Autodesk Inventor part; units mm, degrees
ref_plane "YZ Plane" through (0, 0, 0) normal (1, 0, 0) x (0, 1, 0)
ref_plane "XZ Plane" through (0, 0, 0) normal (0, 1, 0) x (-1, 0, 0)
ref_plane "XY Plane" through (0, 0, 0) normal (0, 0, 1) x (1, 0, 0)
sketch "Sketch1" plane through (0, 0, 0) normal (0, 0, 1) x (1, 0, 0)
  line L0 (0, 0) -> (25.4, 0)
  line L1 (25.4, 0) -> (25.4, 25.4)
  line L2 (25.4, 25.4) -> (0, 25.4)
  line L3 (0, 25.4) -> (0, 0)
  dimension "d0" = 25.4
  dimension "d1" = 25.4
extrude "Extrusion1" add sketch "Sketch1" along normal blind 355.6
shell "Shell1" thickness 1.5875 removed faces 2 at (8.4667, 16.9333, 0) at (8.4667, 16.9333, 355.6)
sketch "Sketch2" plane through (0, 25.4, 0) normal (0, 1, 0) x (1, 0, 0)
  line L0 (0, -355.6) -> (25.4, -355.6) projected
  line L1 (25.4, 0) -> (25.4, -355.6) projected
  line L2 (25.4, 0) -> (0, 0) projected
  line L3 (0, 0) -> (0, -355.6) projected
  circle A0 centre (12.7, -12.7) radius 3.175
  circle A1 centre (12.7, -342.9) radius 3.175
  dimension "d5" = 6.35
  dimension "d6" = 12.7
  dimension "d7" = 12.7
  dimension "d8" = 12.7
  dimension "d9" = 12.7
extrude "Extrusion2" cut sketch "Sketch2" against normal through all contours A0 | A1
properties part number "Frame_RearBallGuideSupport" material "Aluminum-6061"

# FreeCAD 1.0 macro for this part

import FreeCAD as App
import Part
import Sketcher

V = App.Vector
Q = App.Units.Quantity


def faces_at(feature, points):
    """Names of the faces that lie closest to the given points."""
    faces = feature.Shape.Faces
    near = lambda p: min(range(len(faces)), key=lambda i: faces[i].distToShape(Part.Vertex(*p))[0])
    return sorted({f"Face{near(p) + 1}" for p in points})

doc = App.newDocument("Part")
body = doc.addObject("PartDesign::Body", "Body")

# Sketch on XY plane
sketch1 = body.newObject("Sketcher::SketchObject", "Sketch")
sketch1.AttachmentSupport = (doc.getObject("XY_Plane"), [""])
sketch1.MapMode = "FlatFace"
sketch1.addGeometry([
    Part.LineSegment(V(0, 25, 0), V(0, 0, 0)),
    Part.LineSegment(V(0, 0, 0), V(25, 0, 0)),
    Part.LineSegment(V(25, 0, 0), V(25, 25, 0)),
    Part.LineSegment(V(25, 25, 0), V(0, 25, 0)),
], False)
sketch1.addConstraint([
    Sketcher.Constraint("Coincident", 0, 2, 1, 1),
    Sketcher.Constraint("Coincident", 1, 2, 2, 1),
    Sketcher.Constraint("Coincident", 2, 2, 3, 1),
    Sketcher.Constraint("Coincident", 3, 2, 0, 1),
    Sketcher.Constraint("Vertical", 0),
    Sketcher.Constraint("Horizontal", 1),
    Sketcher.Constraint("Vertical", 2),
    Sketcher.Constraint("Horizontal", 3),
    Sketcher.Constraint("Coincident", 0, 2, -1, 1),
    Sketcher.Constraint("Equal", 3, 0),
    Sketcher.Constraint("DistanceX", 1, 1, 1, 2, Q("1 in")),
])
pad1 = body.newObject("PartDesign::Pad", "Pad")
pad1.Profile = sketch1
pad1.Length = Q("14 in")
doc.recompute()

thickness = body.newObject("PartDesign::Thickness", "Thickness")
thickness.Base = (pad1, faces_at(pad1, [(8.467, 16.933, 0), (8.467, 16.933, 355.6)]))
thickness.Value = Q("0.0625 in")
thickness.Reversed = True
thickness.Join = "Intersection"

# Sketch on XZ plane
sketch2 = body.newObject("Sketcher::SketchObject", "Sketch001")
sketch2.AttachmentSupport = (doc.getObject("XZ_Plane"), [""])
sketch2.MapMode = "FlatFace"
sketch2.AttachmentOffset = App.Placement(V(0, 0, -1 * 25.4), App.Rotation())
sketch2.addGeometry([
    Part.Circle(V(12.7, 12.7, 0), V(0, 0, 1), 3.2),
    Part.Circle(V(12.7, 342.9, 0), V(0, 0, 1), 3.2),
], False)
sketch2.addConstraint([
    Sketcher.Constraint("Equal", 0, 1),
    Sketcher.Constraint("Vertical", 0, 3, 1, 3),
    Sketcher.Constraint("Diameter", 0, Q("0.25 in")),
    Sketcher.Constraint("DistanceX", -1, 1, 0, 3, Q("0.5 in")),
    Sketcher.Constraint("DistanceY", -1, 1, 0, 3, Q("0.5 in")),
    Sketcher.Constraint("DistanceY", 0, 3, 1, 3, Q("13 in")),
])
pocket1 = body.newObject("PartDesign::Pocket", "Pocket")
pocket1.Profile = sketch2
pocket1.Type = "ThroughAll"
pocket1.Reversed = True

doc.recompute()
